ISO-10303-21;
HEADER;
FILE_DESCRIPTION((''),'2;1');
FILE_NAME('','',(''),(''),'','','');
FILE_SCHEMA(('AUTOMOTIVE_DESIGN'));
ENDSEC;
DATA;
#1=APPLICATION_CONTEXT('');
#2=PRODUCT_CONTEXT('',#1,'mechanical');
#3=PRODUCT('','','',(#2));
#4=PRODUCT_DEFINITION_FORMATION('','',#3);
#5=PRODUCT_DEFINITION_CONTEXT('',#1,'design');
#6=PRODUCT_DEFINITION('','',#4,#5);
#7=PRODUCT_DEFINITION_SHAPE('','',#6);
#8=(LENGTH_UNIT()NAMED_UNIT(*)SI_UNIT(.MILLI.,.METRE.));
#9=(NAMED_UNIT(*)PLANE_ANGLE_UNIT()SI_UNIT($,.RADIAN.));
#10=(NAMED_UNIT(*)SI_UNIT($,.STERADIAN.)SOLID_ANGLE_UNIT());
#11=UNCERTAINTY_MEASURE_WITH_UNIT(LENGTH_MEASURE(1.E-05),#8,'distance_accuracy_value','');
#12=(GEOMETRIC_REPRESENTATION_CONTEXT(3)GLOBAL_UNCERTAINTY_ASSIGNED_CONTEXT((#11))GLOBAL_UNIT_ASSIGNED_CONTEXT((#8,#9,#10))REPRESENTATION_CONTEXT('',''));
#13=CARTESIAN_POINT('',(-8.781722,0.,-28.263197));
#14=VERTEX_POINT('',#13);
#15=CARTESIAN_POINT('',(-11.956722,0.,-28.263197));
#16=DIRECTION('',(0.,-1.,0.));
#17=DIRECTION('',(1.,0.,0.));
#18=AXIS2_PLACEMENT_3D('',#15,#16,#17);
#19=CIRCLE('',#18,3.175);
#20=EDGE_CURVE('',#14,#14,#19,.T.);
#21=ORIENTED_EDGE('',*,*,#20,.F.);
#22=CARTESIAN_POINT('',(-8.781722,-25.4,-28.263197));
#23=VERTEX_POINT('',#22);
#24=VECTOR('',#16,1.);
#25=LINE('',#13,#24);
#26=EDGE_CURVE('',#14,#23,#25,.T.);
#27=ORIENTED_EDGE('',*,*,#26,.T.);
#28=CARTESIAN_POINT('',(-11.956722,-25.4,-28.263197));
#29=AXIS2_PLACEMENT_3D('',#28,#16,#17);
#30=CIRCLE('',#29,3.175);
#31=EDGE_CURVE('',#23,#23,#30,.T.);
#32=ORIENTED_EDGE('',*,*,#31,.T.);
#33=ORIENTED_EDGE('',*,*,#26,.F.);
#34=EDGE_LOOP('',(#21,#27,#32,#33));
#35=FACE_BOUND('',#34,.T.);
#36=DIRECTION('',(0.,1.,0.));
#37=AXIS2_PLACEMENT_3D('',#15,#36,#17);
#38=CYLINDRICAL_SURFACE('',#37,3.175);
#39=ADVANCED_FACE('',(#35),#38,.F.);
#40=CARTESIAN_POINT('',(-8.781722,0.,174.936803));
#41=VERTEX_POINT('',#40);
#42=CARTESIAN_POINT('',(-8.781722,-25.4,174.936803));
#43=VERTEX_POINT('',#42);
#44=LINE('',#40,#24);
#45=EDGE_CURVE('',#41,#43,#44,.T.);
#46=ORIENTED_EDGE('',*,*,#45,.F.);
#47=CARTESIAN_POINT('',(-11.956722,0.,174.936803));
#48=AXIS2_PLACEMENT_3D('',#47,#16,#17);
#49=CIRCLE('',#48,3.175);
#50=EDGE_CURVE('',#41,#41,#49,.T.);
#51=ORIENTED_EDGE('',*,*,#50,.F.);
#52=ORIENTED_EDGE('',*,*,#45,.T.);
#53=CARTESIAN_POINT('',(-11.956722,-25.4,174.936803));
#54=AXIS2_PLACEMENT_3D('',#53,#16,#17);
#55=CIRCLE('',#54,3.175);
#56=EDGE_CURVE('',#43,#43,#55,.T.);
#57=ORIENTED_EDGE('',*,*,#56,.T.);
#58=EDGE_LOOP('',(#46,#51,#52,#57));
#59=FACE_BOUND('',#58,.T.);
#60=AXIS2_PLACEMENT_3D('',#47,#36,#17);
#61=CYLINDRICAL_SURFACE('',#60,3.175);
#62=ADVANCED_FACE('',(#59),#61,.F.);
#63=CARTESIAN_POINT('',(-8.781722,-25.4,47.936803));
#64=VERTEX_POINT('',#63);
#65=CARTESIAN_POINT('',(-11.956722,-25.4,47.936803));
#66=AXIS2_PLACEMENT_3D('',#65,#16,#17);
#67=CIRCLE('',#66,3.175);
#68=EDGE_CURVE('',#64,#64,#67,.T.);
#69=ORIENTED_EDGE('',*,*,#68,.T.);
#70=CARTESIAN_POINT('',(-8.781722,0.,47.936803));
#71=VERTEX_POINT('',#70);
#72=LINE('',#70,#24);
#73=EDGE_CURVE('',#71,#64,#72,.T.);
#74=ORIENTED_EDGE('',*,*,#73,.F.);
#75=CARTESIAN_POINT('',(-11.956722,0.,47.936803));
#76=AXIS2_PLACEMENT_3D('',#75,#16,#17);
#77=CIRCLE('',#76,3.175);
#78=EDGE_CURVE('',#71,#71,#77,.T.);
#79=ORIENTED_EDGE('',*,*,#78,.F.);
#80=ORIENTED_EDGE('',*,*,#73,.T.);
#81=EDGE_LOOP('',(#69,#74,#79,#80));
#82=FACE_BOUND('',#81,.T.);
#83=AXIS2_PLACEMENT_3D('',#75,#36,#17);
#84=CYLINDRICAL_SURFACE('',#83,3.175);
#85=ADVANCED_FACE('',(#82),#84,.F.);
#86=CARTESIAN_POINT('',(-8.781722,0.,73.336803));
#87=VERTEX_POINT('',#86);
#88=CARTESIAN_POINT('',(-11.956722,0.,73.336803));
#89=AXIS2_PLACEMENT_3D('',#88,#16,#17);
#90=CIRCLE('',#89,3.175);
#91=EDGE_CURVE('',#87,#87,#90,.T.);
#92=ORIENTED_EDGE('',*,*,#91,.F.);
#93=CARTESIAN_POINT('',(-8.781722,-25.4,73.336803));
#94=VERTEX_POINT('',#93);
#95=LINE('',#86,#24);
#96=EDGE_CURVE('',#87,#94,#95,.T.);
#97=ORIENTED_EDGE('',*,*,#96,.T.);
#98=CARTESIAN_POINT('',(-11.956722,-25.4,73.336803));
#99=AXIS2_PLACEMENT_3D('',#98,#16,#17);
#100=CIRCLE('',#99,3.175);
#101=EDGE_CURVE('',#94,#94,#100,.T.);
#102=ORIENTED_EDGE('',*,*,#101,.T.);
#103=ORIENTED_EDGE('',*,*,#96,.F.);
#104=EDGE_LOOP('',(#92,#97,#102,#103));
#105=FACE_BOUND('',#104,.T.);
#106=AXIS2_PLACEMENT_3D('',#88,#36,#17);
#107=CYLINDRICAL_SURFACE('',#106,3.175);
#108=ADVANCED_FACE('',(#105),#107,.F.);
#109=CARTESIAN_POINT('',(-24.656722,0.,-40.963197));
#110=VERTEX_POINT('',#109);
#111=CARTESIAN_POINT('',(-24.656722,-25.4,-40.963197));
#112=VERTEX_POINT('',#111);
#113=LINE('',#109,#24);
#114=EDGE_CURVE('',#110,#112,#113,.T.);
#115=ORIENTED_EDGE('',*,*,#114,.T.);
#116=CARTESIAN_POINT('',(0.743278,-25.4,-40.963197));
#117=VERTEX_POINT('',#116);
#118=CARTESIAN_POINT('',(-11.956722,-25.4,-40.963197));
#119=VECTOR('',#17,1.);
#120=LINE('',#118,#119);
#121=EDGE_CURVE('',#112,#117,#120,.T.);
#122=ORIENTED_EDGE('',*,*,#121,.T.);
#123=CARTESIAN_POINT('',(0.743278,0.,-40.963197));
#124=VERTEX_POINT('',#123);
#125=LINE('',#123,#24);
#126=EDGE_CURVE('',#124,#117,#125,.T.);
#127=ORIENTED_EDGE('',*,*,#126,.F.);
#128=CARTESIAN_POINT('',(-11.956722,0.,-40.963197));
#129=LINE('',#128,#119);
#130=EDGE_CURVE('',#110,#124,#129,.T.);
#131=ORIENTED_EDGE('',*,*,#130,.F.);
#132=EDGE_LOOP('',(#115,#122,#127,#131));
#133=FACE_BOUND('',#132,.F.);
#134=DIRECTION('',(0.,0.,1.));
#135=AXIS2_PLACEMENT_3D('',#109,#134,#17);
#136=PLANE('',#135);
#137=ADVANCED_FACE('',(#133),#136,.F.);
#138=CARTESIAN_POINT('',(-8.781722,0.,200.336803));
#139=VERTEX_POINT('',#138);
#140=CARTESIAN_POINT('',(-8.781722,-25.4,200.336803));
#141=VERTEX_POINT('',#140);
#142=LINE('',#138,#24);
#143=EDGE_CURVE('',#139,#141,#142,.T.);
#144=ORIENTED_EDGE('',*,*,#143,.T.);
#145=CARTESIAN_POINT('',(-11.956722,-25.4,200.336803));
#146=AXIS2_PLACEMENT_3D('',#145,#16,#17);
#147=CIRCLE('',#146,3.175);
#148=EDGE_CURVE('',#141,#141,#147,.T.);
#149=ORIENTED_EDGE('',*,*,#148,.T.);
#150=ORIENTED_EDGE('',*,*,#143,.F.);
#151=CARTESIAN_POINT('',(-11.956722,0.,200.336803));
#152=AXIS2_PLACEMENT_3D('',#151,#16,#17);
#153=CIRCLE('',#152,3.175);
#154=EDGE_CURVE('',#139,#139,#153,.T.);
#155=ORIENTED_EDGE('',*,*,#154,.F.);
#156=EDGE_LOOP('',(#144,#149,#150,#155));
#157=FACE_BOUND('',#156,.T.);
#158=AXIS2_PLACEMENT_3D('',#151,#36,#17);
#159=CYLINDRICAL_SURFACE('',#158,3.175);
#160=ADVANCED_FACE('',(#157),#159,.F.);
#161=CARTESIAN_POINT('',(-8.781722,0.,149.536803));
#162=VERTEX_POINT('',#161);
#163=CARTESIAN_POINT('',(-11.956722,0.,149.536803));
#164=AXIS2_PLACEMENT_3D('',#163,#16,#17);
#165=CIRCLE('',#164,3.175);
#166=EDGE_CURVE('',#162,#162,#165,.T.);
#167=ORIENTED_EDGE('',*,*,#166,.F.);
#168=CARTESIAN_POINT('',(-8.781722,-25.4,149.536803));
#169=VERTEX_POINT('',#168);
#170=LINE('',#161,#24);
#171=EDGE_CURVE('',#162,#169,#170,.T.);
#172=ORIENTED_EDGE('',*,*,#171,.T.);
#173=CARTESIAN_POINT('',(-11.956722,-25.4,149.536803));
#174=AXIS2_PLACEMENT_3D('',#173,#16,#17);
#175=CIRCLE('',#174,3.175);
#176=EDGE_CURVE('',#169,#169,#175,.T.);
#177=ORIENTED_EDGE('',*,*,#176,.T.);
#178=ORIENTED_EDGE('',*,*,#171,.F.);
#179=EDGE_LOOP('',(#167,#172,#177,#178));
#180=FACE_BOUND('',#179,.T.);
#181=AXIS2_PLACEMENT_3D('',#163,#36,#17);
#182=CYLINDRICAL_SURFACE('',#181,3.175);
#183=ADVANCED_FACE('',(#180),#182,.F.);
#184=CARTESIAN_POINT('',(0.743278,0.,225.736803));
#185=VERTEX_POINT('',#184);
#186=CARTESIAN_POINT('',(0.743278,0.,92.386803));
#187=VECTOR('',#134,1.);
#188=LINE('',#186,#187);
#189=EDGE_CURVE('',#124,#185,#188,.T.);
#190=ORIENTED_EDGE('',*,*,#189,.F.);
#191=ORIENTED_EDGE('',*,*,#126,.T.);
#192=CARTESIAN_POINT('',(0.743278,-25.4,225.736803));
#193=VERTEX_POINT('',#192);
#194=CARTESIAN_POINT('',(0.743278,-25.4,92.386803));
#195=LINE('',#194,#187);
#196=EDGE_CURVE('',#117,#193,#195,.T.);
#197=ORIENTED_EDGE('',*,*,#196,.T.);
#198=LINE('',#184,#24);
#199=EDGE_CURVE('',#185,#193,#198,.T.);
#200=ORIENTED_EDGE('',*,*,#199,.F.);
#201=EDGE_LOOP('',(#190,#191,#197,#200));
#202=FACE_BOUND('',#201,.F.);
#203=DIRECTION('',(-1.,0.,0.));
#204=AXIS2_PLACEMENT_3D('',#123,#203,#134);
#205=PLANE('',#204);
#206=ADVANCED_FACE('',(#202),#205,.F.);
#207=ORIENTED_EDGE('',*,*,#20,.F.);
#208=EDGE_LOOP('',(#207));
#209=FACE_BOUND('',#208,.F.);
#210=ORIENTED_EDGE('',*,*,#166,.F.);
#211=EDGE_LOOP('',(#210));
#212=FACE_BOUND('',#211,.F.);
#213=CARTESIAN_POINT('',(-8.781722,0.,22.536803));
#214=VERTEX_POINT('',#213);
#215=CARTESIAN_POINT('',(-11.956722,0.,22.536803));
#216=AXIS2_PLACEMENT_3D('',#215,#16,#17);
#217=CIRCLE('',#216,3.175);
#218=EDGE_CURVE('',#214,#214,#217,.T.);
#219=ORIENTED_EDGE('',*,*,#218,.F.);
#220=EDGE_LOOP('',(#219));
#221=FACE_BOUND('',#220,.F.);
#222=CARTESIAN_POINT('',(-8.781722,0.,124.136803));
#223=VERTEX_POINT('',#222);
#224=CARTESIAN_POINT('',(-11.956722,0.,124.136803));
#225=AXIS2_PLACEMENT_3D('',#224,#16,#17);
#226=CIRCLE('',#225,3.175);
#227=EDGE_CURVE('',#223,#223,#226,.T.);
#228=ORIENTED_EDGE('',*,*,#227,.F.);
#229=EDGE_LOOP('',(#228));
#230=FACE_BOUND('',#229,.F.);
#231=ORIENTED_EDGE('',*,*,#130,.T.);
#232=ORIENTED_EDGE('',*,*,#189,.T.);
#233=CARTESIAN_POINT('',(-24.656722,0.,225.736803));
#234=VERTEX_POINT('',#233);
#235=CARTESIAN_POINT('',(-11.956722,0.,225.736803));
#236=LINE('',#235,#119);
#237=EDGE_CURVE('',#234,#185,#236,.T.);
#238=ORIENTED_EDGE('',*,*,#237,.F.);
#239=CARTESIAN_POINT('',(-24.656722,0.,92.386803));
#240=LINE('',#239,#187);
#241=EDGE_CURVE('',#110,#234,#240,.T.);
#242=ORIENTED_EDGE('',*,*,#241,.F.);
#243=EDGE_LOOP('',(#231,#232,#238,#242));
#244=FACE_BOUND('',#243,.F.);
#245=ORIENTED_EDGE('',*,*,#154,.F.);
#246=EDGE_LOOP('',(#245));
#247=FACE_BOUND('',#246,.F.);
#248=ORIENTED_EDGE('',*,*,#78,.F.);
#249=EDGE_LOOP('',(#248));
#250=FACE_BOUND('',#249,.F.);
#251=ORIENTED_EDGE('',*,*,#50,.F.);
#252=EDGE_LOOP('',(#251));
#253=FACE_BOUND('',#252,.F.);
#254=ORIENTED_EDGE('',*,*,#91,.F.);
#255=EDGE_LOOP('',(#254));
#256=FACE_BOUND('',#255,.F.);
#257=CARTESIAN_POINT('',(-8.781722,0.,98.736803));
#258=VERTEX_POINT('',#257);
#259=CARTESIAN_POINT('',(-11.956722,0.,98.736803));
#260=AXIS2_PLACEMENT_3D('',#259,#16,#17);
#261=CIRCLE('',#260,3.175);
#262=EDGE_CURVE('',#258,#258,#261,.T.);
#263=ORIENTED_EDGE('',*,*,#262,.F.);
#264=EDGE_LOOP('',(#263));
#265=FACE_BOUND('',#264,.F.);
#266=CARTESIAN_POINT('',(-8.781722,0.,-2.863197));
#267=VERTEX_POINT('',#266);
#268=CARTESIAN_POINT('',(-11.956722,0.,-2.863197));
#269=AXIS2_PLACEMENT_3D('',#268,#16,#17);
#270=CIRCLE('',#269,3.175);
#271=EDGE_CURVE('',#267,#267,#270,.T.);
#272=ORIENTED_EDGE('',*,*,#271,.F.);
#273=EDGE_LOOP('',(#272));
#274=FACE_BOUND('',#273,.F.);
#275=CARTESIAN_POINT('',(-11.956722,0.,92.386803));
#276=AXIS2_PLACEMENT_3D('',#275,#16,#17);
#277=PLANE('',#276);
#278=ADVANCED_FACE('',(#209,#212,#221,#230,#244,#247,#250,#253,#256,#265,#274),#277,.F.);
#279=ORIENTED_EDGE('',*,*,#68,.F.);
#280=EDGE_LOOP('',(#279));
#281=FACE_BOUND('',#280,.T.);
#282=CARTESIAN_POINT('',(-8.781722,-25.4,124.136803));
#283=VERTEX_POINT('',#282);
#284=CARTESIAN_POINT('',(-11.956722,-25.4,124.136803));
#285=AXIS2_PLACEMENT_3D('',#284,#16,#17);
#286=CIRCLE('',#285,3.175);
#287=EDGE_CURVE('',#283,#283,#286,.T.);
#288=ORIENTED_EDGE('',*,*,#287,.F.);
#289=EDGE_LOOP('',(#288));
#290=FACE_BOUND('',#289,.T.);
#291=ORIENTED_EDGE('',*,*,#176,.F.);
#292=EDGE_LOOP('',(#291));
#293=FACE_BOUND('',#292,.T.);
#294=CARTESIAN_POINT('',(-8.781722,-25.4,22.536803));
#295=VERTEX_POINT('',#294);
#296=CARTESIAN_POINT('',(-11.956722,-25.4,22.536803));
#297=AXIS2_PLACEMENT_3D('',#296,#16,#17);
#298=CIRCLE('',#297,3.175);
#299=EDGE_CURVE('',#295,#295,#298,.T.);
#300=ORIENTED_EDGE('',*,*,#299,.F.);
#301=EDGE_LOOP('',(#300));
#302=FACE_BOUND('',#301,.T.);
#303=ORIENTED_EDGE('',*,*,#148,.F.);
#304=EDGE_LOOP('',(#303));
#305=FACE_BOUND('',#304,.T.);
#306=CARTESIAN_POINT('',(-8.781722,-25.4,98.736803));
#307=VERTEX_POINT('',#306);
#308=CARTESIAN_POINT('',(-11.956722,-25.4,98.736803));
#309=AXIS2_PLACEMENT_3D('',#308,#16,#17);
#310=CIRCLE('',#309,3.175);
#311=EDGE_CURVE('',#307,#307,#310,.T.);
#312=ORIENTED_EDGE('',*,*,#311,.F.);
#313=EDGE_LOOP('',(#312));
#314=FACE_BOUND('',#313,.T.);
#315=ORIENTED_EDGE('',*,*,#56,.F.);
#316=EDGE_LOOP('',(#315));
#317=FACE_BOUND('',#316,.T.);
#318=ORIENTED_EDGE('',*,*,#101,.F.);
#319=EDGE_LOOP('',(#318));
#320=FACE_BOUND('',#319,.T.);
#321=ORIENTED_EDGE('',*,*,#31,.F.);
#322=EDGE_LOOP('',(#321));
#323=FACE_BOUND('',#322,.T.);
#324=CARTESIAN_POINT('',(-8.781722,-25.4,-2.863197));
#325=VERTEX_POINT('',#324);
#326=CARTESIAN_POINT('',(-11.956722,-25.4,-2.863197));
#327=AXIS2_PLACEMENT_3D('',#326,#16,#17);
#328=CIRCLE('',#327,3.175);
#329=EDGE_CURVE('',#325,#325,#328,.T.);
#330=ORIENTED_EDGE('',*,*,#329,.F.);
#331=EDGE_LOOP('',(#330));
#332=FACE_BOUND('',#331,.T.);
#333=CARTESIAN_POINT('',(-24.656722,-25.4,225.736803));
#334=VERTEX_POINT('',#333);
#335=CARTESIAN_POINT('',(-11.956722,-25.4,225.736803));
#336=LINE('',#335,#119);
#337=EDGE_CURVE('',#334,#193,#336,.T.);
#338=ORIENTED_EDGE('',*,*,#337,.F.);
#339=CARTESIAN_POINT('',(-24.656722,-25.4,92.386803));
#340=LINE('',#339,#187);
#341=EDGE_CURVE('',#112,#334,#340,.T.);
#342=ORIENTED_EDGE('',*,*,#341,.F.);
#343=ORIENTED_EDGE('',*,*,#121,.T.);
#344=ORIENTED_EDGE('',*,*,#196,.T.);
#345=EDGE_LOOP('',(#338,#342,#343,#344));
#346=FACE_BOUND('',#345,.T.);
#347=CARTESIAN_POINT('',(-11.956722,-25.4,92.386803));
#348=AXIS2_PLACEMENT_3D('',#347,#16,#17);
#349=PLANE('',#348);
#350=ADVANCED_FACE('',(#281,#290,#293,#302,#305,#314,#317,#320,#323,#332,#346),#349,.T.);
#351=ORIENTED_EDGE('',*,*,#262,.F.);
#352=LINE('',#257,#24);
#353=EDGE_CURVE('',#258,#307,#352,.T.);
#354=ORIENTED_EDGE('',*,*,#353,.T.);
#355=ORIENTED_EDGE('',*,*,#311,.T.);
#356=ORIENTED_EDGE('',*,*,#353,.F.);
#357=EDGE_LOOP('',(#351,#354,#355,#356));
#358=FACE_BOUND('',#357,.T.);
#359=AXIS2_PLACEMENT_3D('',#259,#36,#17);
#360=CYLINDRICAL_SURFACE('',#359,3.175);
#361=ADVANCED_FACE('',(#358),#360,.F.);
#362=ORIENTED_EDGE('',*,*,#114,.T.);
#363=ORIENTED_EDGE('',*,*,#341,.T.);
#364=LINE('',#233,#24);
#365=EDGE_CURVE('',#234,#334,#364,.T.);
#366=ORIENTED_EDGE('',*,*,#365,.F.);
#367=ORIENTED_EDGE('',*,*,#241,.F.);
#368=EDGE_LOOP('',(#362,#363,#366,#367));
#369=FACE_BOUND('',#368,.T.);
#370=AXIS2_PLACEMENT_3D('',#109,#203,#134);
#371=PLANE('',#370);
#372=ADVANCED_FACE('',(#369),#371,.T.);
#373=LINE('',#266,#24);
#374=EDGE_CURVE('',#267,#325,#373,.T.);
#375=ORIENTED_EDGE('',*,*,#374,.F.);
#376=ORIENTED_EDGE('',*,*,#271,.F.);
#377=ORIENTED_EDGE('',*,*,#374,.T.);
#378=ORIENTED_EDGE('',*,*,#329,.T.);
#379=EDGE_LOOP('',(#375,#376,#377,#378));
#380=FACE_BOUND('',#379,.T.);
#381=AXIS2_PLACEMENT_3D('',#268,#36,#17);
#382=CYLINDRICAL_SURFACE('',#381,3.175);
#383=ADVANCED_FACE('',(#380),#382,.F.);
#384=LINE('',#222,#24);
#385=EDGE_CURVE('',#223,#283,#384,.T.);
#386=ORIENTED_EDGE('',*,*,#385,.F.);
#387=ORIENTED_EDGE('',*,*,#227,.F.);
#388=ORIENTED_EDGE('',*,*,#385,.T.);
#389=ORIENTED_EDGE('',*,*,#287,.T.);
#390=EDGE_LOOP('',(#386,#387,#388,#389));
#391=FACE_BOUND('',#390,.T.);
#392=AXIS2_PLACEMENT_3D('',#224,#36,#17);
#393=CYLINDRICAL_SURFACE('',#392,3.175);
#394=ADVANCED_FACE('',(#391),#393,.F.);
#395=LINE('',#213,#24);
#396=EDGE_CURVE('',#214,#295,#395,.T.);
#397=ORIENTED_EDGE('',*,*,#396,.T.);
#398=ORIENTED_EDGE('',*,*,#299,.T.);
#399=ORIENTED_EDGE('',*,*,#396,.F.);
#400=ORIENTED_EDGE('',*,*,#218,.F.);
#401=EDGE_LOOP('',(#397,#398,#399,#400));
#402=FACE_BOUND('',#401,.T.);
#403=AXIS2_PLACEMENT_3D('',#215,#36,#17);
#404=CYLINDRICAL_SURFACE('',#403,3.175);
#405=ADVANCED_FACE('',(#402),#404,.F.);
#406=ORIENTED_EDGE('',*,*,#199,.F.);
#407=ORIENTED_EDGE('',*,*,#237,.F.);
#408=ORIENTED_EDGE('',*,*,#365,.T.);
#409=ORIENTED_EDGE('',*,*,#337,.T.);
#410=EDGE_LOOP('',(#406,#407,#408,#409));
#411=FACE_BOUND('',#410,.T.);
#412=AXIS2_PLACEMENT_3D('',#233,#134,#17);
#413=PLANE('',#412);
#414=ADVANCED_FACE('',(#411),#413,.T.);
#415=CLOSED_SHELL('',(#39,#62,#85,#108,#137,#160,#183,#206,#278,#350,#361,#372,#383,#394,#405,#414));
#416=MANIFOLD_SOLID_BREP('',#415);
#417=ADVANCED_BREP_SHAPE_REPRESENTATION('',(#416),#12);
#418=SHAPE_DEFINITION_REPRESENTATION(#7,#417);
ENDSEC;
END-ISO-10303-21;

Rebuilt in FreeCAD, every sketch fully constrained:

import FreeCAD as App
import Part
import Sketcher

V = App.Vector
Q = App.Units.Quantity


def add_polygon(sketch, points):
    """Adds a closed chain of lines whose ends are joined by coincident constraints."""
    first, n = sketch.GeometryCount, len(points)
    for a, b in zip(points, points[1:] + points[:1]):
        sketch.addGeometry(Part.LineSegment(App.Vector(*a, 0), App.Vector(*b, 0)), False)
    for i in range(n):
        sketch.addConstraint(Sketcher.Constraint("Coincident", first + i, 2, first + (i + 1) % n, 1))

doc = App.newDocument("Part")
body = doc.addObject("PartDesign::Body", "Body")

sketch1 = body.newObject("Sketcher::SketchObject", "Sketch")
sketch1.AttachmentSupport = (doc.getObject("XZ_Plane"), [""])
sketch1.MapMode = "FlatFace"
add_polygon(sketch1, [(-24.7, 225.7), (-24.7, -41), (0.7, -41), (0.7, 225.7)])
sketch1.addGeometry(Part.Circle(V(-12, -28.3, 0), V(0, 0, 1), 3.2), False)
sketch1.addGeometry(Part.Circle(V(-12, -2.9, 0), V(0, 0, 1), 3.2), False)
sketch1.addGeometry(Part.Circle(V(-12, 22.5, 0), V(0, 0, 1), 3.2), False)
sketch1.addGeometry(Part.Circle(V(-12, 47.9, 0), V(0, 0, 1), 3.2), False)
sketch1.addGeometry(Part.Circle(V(-12, 73.3, 0), V(0, 0, 1), 3.2), False)
sketch1.addGeometry(Part.Circle(V(-12, 98.7, 0), V(0, 0, 1), 3.2), False)
sketch1.addGeometry(Part.Circle(V(-12, 124.1, 0), V(0, 0, 1), 3.2), False)
sketch1.addGeometry(Part.Circle(V(-12, 149.5, 0), V(0, 0, 1), 3.2), False)
sketch1.addGeometry(Part.Circle(V(-12, 174.9, 0), V(0, 0, 1), 3.2), False)
sketch1.addGeometry(Part.Circle(V(-12, 200.3, 0), V(0, 0, 1), 3.2), False)
sketch1.addConstraint([
    Sketcher.Constraint("Vertical", 0),
    Sketcher.Constraint("Horizontal", 1),
    Sketcher.Constraint("Vertical", 2),
    Sketcher.Constraint("Horizontal", 3),
    Sketcher.Constraint("Equal", 4, 5),
    Sketcher.Constraint("Equal", 5, 6),
    Sketcher.Constraint("Equal", 6, 7),
    Sketcher.Constraint("Equal", 7, 8),
    Sketcher.Constraint("Equal", 8, 9),
    Sketcher.Constraint("Equal", 9, 10),
    Sketcher.Constraint("Equal", 10, 11),
    Sketcher.Constraint("Equal", 11, 12),
    Sketcher.Constraint("Equal", 12, 13),
    Sketcher.Constraint("Vertical", 4, 3, 5, 3),
    Sketcher.Constraint("Vertical", 5, 3, 6, 3),
    Sketcher.Constraint("Vertical", 6, 3, 7, 3),
    Sketcher.Constraint("Vertical", 7, 3, 8, 3),
    Sketcher.Constraint("Vertical", 8, 3, 9, 3),
    Sketcher.Constraint("Vertical", 9, 3, 10, 3),
    Sketcher.Constraint("Vertical", 10, 3, 11, 3),
    Sketcher.Constraint("Vertical", 11, 3, 12, 3),
    Sketcher.Constraint("Vertical", 12, 3, 13, 3),
    Sketcher.Constraint("Diameter", 4, Q("0.25 in")),
    Sketcher.Constraint("DistanceX", 1, 1, 1, 2, Q("1 in")),
    Sketcher.Constraint("DistanceY", 0, 2, 0, 1, Q("10.5 in")),
    Sketcher.Constraint("DistanceY", 4, 3, 5, 3, Q("1 in")),
    Sketcher.Constraint("DistanceY", 5, 3, 6, 3, Q("1 in")),
    Sketcher.Constraint("DistanceY", 6, 3, 7, 3, Q("1 in")),
    Sketcher.Constraint("DistanceY", 7, 3, 8, 3, Q("1 in")),
    Sketcher.Constraint("DistanceY", 8, 3, 9, 3, Q("1 in")),
    Sketcher.Constraint("DistanceY", 9, 3, 10, 3, Q("1 in")),
    Sketcher.Constraint("DistanceY", 10, 3, 11, 3, Q("1 in")),
    Sketcher.Constraint("DistanceY", 11, 3, 12, 3, Q("1 in")),
    Sketcher.Constraint("DistanceY", 12, 3, 13, 3, Q("1 in")),
    Sketcher.Constraint("DistanceY", 13, 3, 2, 2, Q("1 in")),
    Sketcher.Constraint("DistanceX", 0, 2, 4, 3, Q("0.5 in")),
    Sketcher.Constraint("DistanceX", 4, 3, -1, 1, Q("11.956722 mm")),
    Sketcher.Constraint("DistanceY", 4, 3, -1, 1, Q("28.263197 mm")),
])
pad1 = body.newObject("PartDesign::Pad", "Pad")
pad1.Profile = sketch1
pad1.Length = Q("1 in")

doc.recompute()
